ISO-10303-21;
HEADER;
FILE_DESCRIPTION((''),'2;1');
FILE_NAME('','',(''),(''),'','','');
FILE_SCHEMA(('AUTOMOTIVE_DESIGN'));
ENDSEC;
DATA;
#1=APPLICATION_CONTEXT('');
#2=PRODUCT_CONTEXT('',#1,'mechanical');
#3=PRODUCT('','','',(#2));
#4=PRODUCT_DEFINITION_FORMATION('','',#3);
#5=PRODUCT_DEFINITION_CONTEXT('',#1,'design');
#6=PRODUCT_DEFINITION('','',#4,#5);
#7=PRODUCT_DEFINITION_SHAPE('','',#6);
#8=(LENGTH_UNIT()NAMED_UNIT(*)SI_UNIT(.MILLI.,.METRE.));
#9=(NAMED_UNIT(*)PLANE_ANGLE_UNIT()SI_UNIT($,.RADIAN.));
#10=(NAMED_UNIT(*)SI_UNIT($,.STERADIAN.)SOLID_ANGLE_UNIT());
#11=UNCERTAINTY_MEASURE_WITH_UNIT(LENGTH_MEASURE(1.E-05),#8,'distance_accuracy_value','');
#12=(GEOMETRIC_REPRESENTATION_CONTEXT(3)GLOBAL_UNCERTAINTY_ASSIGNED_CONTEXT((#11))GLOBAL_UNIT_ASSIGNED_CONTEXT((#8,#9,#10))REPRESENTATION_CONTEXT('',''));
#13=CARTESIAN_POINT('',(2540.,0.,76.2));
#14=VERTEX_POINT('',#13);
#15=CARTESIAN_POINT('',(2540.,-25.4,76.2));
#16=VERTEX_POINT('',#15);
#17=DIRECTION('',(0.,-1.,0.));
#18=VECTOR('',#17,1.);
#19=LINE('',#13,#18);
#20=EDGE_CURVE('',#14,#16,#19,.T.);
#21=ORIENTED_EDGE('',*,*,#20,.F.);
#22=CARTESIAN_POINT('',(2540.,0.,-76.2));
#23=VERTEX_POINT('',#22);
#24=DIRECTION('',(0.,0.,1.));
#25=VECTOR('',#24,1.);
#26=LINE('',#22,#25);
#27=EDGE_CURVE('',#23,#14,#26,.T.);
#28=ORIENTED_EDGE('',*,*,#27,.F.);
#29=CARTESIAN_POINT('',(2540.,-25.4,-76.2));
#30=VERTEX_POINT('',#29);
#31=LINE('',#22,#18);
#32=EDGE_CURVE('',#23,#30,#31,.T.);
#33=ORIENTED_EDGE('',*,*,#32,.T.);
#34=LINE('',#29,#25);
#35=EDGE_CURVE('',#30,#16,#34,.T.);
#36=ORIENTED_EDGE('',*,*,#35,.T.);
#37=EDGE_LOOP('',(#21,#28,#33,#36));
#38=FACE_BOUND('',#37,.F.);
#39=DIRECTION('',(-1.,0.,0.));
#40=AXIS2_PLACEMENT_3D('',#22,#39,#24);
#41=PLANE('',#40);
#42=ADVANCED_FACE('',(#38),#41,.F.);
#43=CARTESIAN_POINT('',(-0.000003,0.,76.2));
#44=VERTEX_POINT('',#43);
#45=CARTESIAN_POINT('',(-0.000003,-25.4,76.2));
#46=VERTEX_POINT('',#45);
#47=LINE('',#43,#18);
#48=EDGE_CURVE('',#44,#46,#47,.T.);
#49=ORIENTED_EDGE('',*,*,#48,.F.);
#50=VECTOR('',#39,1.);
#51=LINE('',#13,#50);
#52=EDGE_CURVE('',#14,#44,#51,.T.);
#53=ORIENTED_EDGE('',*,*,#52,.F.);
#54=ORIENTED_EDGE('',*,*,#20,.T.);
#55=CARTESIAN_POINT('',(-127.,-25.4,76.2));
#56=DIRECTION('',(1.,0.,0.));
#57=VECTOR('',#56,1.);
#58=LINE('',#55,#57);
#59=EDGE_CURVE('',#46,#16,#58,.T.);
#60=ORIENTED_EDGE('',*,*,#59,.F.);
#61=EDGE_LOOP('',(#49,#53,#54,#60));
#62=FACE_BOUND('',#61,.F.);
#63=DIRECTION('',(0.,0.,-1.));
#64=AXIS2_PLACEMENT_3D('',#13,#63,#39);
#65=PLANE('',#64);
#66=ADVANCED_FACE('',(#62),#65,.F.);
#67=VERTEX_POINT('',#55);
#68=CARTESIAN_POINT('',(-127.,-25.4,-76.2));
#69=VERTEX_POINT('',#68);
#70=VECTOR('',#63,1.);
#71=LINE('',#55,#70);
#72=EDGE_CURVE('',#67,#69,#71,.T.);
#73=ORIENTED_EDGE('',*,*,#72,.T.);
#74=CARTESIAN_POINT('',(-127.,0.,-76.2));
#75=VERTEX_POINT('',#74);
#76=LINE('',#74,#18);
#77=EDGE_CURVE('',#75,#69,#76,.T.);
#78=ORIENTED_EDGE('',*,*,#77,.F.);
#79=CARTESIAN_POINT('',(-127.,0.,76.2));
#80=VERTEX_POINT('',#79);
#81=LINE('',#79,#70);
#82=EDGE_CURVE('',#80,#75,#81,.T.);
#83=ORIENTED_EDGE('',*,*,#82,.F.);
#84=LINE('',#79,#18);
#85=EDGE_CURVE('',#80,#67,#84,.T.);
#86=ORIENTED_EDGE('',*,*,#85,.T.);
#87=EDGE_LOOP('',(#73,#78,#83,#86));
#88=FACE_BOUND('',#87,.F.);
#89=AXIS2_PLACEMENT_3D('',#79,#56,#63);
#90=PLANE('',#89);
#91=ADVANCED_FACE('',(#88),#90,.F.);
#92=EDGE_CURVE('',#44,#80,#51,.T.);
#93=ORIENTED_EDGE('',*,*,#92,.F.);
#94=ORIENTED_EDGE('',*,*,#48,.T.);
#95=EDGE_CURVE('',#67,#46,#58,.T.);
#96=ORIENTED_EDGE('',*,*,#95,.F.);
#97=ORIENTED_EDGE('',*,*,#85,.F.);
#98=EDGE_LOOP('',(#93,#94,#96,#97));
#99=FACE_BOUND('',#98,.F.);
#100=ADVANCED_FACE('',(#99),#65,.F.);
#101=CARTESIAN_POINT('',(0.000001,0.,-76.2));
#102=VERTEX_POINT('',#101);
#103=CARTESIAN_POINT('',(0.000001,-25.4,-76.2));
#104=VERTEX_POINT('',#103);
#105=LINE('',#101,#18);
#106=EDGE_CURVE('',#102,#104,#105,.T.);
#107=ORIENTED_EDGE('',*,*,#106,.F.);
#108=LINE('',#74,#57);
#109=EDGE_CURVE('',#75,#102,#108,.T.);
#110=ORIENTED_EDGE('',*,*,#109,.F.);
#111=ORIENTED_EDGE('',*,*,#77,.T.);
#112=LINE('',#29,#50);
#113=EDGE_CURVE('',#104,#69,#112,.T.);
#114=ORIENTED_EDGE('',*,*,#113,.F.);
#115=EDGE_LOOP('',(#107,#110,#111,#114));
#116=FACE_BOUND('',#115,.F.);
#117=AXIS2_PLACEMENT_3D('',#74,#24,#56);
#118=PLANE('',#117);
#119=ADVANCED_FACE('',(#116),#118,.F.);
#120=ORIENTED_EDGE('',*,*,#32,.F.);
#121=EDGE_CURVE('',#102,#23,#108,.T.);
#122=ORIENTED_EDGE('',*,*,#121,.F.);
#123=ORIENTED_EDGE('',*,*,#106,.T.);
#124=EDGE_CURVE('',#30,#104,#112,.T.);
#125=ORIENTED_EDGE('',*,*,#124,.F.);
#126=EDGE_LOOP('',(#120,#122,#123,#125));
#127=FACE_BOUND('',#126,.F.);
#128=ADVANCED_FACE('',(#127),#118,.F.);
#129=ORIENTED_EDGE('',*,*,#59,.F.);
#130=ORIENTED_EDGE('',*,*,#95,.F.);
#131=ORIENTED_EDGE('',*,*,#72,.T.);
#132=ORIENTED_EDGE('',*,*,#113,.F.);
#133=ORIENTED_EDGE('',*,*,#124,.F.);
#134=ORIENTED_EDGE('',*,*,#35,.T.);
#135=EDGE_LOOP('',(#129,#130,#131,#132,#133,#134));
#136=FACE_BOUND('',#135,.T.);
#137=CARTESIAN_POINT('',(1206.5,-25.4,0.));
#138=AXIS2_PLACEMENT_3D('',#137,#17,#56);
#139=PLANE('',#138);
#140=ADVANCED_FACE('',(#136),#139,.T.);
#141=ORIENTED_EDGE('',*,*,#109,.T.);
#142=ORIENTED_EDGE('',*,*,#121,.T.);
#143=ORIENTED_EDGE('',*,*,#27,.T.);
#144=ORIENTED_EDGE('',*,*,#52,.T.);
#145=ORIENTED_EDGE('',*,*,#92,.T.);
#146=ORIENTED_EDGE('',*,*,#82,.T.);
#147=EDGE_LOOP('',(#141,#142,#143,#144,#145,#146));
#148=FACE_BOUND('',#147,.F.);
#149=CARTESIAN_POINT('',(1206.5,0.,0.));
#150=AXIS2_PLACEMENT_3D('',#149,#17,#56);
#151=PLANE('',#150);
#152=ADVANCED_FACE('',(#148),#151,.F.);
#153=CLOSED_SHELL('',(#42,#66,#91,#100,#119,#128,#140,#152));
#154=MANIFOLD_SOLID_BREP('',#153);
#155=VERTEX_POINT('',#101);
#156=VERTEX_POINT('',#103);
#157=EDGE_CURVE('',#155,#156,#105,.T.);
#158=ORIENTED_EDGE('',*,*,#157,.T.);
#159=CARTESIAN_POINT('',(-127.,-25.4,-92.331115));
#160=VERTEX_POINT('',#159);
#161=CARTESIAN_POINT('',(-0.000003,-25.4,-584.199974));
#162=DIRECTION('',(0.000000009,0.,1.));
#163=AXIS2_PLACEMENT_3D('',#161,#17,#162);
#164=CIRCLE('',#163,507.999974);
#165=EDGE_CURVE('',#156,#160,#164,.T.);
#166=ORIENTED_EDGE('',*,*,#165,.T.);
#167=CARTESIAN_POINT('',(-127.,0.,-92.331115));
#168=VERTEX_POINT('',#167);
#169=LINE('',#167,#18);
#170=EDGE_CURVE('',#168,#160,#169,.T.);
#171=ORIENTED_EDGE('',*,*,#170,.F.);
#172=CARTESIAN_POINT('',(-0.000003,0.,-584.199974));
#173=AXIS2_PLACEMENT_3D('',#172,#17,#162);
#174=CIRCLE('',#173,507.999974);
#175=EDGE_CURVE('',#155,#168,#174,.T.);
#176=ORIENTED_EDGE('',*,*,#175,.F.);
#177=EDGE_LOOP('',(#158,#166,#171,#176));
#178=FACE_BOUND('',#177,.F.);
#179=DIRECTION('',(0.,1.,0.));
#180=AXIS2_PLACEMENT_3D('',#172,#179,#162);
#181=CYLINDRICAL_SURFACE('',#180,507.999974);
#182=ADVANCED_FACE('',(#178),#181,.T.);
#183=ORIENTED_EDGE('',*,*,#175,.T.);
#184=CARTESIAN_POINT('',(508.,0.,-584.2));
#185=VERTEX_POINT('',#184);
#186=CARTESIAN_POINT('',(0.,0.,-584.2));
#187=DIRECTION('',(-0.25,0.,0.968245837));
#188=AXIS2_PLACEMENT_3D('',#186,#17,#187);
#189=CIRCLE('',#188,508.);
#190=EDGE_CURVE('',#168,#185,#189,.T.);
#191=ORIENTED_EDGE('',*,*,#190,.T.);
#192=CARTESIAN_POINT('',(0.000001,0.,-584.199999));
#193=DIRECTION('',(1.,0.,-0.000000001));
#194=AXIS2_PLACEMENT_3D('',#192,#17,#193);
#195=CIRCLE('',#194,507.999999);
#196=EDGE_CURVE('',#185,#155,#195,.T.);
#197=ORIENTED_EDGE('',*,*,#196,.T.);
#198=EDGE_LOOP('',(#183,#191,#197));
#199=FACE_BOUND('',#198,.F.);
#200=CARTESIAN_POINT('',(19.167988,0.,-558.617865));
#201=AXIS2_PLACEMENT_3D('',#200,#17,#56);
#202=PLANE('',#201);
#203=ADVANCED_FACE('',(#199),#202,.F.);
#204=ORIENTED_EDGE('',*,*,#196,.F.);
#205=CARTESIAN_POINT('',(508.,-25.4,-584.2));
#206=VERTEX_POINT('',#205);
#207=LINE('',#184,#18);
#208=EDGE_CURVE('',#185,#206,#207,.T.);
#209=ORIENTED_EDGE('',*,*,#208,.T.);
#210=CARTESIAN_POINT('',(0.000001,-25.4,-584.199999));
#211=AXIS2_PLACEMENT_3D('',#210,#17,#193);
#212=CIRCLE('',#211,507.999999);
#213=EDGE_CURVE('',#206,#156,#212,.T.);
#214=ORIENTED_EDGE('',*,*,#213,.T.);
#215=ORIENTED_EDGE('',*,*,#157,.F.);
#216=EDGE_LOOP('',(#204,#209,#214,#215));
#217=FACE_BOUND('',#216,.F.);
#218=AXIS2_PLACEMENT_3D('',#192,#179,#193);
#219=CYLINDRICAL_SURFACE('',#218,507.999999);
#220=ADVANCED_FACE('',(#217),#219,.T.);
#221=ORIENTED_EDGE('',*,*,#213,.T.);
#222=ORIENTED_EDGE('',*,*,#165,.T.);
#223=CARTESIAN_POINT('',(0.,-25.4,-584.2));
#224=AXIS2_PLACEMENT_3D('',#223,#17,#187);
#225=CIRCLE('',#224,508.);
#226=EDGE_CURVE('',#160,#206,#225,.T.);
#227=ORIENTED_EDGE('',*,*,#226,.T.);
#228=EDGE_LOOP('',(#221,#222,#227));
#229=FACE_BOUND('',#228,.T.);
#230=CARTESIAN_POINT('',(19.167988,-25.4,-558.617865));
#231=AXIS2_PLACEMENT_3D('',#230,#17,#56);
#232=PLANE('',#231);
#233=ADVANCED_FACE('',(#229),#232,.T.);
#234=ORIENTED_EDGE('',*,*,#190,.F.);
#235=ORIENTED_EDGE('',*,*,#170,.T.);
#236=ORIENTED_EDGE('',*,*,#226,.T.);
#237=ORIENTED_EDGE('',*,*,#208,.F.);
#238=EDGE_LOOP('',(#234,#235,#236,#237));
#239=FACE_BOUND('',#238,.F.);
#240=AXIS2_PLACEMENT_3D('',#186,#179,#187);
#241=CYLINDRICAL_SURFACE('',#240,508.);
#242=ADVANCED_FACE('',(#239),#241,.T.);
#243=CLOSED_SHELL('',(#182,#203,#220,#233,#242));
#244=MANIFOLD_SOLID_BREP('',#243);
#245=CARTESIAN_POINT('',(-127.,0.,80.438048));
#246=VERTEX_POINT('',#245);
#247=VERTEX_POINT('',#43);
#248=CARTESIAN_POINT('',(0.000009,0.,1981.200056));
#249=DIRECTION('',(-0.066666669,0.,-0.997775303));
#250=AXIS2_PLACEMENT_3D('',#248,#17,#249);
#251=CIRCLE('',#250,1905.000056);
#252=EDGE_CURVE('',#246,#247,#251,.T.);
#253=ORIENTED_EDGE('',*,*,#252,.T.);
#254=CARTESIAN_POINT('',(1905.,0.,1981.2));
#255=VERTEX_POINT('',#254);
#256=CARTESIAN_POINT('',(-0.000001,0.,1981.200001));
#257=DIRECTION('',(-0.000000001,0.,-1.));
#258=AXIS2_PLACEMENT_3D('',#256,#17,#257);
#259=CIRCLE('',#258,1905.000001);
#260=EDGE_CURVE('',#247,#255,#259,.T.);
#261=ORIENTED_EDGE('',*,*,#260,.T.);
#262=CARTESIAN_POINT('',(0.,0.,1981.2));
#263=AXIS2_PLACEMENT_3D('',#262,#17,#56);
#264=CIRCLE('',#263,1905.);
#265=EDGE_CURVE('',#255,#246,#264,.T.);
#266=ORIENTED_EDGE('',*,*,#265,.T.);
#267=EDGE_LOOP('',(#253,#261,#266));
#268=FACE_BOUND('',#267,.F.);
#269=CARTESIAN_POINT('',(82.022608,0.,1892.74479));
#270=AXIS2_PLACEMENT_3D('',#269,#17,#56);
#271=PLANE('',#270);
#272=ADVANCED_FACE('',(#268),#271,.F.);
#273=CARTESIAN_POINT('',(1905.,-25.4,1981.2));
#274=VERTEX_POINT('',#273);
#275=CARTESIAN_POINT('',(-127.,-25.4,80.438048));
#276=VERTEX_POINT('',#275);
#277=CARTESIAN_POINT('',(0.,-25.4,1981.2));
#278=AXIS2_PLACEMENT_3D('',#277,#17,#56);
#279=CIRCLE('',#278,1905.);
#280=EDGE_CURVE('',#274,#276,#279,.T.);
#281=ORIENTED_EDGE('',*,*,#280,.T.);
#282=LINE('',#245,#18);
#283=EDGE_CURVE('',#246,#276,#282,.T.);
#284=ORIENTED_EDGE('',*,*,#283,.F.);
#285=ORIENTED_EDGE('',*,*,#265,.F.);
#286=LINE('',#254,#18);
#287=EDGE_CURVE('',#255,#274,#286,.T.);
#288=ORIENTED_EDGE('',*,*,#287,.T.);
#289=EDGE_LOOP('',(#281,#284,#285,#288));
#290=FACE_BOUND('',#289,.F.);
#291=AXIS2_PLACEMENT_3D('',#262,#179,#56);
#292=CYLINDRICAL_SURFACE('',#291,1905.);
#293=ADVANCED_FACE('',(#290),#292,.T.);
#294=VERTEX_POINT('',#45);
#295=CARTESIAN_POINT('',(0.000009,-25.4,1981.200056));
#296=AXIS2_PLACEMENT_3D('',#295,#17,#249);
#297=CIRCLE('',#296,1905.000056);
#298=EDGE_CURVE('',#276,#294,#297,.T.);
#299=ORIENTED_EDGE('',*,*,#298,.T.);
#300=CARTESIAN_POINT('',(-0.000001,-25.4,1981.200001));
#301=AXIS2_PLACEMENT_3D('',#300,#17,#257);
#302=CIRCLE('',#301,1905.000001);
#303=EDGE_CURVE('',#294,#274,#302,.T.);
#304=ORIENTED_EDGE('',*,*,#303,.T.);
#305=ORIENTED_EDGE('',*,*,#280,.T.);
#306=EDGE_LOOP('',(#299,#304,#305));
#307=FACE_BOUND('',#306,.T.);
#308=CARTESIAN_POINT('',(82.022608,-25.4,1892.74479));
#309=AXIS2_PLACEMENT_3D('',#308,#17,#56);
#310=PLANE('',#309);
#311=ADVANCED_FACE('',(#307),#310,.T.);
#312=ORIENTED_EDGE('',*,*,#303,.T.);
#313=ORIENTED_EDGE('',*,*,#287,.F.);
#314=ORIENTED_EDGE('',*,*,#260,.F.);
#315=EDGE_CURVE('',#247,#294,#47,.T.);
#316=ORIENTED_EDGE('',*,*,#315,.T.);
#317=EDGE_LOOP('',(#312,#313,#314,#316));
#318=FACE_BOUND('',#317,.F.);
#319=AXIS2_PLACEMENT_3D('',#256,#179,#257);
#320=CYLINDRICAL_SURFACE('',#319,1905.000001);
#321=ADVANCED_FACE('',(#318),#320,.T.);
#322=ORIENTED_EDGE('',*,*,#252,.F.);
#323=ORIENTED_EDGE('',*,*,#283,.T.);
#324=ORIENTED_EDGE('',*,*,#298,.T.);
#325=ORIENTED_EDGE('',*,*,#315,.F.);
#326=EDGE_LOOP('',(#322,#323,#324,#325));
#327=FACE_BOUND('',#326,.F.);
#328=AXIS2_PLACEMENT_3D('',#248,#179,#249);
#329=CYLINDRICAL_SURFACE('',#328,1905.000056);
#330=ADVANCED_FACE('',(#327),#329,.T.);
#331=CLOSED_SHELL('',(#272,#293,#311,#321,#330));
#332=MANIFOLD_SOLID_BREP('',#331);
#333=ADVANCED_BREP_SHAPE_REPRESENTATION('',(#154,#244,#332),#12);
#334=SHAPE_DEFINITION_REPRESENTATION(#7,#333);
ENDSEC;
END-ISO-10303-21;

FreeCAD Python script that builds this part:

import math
import FreeCAD as App
import Part
import Sketcher
Q = App.Units.Quantity


def add_polygon(sketch, points):
    """Adds a closed chain of lines whose ends are joined by coincident constraints."""
    first, n = sketch.GeometryCount, len(points)
    for a, b in zip(points, points[1:] + points[:1]):
        sketch.addGeometry(Part.LineSegment(App.Vector(*a, 0), App.Vector(*b, 0)), False)
    for i in range(n):
        sketch.addConstraint(Sketcher.Constraint("Coincident", first + i, 2, first + (i + 1) % n, 1))

doc = App.newDocument("Part")
params = doc.addObject("Spreadsheet::Sheet", "Params")
for row, (alias, value) in enumerate([
    ("sketch1_radius", "75 in"),
    ("sketch1_radius2", "20 in"),
    ("sketch1_width", "100.0000001 in"),
    ("sketch1_width2", "4.9999999 in"),
    ("sketch1_width3", "5 in"),
    ("pad1_length", "1 in"),
], start=1):
    params.set(f"A{row}", alias)
    params.set(f"B{row}", "=" + value)
    params.setAlias(f"B{row}", alias)

body = doc.addObject("PartDesign::Body", "Body")
body.AllowCompound = True

# Sketch on XZ plane
sketch1 = body.newObject("Sketcher::SketchObject", "Sketch")
sketch1.AttachmentSupport = (doc.getObject("XZ_Plane"), [""])
sketch1.MapMode = "FlatFace"
sketch1.addGeometry(Part.ArcOfCircle(Part.Circle(App.Vector(-0.000001, 1981.200001, 0), App.Vector(0, 0, 1), 1905.000001), math.radians(-90), math.radians(0)), False)  # 0
sketch1.addGeometry(Part.ArcOfCircle(Part.Circle(App.Vector(0, 1981.2, 0), App.Vector(0, 0, 1), 1905), math.radians(0), math.radians(266.177446)), False)  # 1
sketch1.addGeometry(Part.ArcOfCircle(Part.Circle(App.Vector(0.000009, 1981.200056, 0), App.Vector(0, 0, 1), 1905.000056), math.radians(-93.822554), math.radians(-90)), False)  # 2
add_polygon(sketch1, [(2540, 76.2), (-0.000003, 76.2), (-127, 76.2), (-127, -76.2), (0.000001, -76.2), (2540, -76.2)])  # lines 3-8
sketch1.addGeometry(Part.ArcOfCircle(Part.Circle(App.Vector(0.000001, -584.199999, 0), App.Vector(0, 0, 1), 507.999999), math.radians(0), math.radians(90)), False)  # 9
sketch1.addGeometry(Part.ArcOfCircle(Part.Circle(App.Vector(-0.000003, -584.199974, 0), App.Vector(0, 0, 1), 507.999974), math.radians(90), math.radians(104.477513)), False)  # 10
sketch1.addGeometry(Part.ArcOfCircle(Part.Circle(App.Vector(0, -584.2, 0), App.Vector(0, 0, 1), 508), math.radians(104.477512), math.radians(360)), False)  # 11
sketch1.addConstraint(Sketcher.Constraint("Coincident", 0, 2, 1, 1))
sketch1.addConstraint(Sketcher.Constraint("Coincident", 1, 2, 2, 1))
sketch1.addConstraint(Sketcher.Constraint("Coincident", 2, 2, 0, 1))
sketch1.addConstraint(Sketcher.Constraint("Coincident", 9, 2, 10, 1))
sketch1.addConstraint(Sketcher.Constraint("Coincident", 10, 2, 11, 1))
sketch1.addConstraint(Sketcher.Constraint("Coincident", 11, 2, 9, 1))
sketch1.addConstraint(Sketcher.Constraint("Horizontal", 3))
sketch1.addConstraint(Sketcher.Constraint("Horizontal", 4))
sketch1.addConstraint(Sketcher.Constraint("Vertical", 5))
sketch1.addConstraint(Sketcher.Constraint("Horizontal", 6))
sketch1.addConstraint(Sketcher.Constraint("Horizontal", 7))
sketch1.addConstraint(Sketcher.Constraint("Vertical", 8))
sketch1.addConstraint(Sketcher.Constraint("Coincident", 1, 3, 0, 3))
sketch1.addConstraint(Sketcher.Constraint("Coincident", 11, 3, 9, 3))
sketch1.addConstraint(Sketcher.Constraint("Coincident", 3, 2, 2, 2))
sketch1.addConstraint(Sketcher.Constraint("Coincident", 9, 2, 6, 2))
sketch1.addConstraint(Sketcher.Constraint("PointOnObject", 0, 3, -2))
sketch1.addConstraint(Sketcher.Constraint("PointOnObject", 9, 3, -2))
sketch1.addConstraint(Sketcher.Constraint("PointOnObject", 6, 2, -2))
sketch1.addConstraint(Sketcher.Constraint("Horizontal", 1, 3, 0, 2))
sketch1.addConstraint(Sketcher.Constraint("Horizontal", 9, 3, 11, 2))
sketch1.addConstraint(Sketcher.Constraint("Vertical", 10, 3, 3, 2))
sketch1.addConstraint(Sketcher.Constraint("Vertical", 1, 2, 4, 2))
sketch1.addConstraint(Sketcher.Constraint("Vertical", 5, 2, 10, 2))
sketch1.addConstraint(Sketcher.Constraint("Radius", 0, Q("75 in")))
sketch1.addConstraint(Sketcher.Constraint("Radius", 9, Q("20 in")))
sketch1.addConstraint(Sketcher.Constraint("DistanceX", 3, 2, 3, 1, Q("100.0000001 in")))
sketch1.addConstraint(Sketcher.Constraint("DistanceX", 4, 2, 4, 1, Q("4.9999999 in")))
sketch1.addConstraint(Sketcher.Constraint("DistanceX", 6, 1, 6, 2, Q("5 in")))
sketch1.addConstraint(Sketcher.Constraint("DistanceY", 5, 2, 5, 1, Q("6 in")))
sketch1.addConstraint(Sketcher.Constraint("DistanceY", -1, 1, 0, 3, Q("78 in")))
sketch1.addConstraint(Sketcher.Constraint("Radius", 2, Q("1905.000056 mm")))
sketch1.setExpression("Constraints[30]", "Params.sketch1_radius")
sketch1.setExpression("Constraints[31]", "Params.sketch1_radius2")
sketch1.setExpression("Constraints[32]", "Params.sketch1_width")
sketch1.setExpression("Constraints[33]", "Params.sketch1_width2")
sketch1.setExpression("Constraints[34]", "Params.sketch1_width3")
pad1 = body.newObject("PartDesign::Pad", "Pad")
pad1.Profile = sketch1
pad1.setExpression("Length", "Params.pad1_length")

doc.recompute()
